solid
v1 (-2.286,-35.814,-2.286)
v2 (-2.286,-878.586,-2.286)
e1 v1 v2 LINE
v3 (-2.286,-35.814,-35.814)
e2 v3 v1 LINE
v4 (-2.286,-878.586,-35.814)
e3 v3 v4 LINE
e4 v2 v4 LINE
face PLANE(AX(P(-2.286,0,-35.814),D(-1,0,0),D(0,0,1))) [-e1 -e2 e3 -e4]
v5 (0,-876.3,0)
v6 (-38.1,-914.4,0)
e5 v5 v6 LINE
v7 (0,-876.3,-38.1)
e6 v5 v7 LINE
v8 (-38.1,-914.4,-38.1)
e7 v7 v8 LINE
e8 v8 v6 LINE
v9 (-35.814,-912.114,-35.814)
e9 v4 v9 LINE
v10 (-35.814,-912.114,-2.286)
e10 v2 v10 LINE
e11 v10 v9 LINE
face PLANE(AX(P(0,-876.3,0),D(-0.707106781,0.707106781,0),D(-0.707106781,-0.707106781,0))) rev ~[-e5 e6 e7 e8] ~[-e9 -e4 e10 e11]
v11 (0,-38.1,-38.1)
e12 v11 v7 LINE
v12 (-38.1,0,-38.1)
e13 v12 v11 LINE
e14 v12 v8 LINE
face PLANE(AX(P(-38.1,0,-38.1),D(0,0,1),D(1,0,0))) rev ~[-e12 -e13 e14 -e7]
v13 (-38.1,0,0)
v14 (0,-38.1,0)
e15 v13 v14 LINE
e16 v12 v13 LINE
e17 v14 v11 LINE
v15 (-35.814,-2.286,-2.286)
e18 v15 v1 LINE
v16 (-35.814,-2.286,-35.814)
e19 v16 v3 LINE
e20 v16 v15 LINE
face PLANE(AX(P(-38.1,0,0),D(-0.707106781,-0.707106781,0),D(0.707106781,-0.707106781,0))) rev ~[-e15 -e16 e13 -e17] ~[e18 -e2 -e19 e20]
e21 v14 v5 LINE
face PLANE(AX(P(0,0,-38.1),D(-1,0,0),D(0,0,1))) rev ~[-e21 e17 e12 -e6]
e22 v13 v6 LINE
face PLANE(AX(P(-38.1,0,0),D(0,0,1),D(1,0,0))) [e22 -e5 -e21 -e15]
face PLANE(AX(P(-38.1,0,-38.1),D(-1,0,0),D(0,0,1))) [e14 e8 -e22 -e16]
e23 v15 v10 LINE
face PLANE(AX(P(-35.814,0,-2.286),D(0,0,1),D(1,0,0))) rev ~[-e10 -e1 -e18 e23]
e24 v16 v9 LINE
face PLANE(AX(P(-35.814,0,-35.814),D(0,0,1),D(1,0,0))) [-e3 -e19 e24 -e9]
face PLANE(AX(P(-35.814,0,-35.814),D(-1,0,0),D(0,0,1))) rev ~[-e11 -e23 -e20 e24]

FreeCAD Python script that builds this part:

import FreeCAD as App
import Part
import Sketcher
from FreeCAD import Vector
Q = App.Units.Quantity

doc = App.newDocument("Part")
body = doc.addObject("PartDesign::Body", "Body")

# Sketch on XZ plane
sketch1 = doc.addObject("Sketcher::SketchObject", "Sketch")
body.addObject(sketch1)
sketch1.AttachmentSupport = (doc.XZ_Plane, [""])
sketch1.MapMode = "FlatFace"
sketch1.addGeometry([
    Part.LineSegment(Vector(-38, 0, 0), Vector(-38, -38, 0)),  # 0
    Part.LineSegment(Vector(-38, -38, 0), Vector(0, -38, 0)),  # 1
    Part.LineSegment(Vector(0, -38, 0), Vector(0, 0, 0)),  # 2
    Part.LineSegment(Vector(0, 0, 0), Vector(-38, 0, 0)),  # 3
    Part.LineSegment(Vector(-2, -36, 0), Vector(-36, -36, 0)),  # 4
    Part.LineSegment(Vector(-36, -36, 0), Vector(-36, -2, 0)),  # 5
    Part.LineSegment(Vector(-36, -2, 0), Vector(-2, -2, 0)),  # 6
    Part.LineSegment(Vector(-2, -2, 0), Vector(-2, -36, 0)),  # 7
], False)
sketch1.addConstraint([
    Sketcher.Constraint("Coincident", 0, 2, 1, 1),
    Sketcher.Constraint("Coincident", 1, 2, 2, 1),
    Sketcher.Constraint("Coincident", 2, 2, 3, 1),
    Sketcher.Constraint("Coincident", 3, 2, 0, 1),
    Sketcher.Constraint("Coincident", 4, 2, 5, 1),
    Sketcher.Constraint("Coincident", 5, 2, 6, 1),
    Sketcher.Constraint("Coincident", 6, 2, 7, 1),
    Sketcher.Constraint("Coincident", 7, 2, 4, 1),
    Sketcher.Constraint("Vertical", 0),
    Sketcher.Constraint("Horizontal", 1),
    Sketcher.Constraint("Vertical", 2),
    Sketcher.Constraint("Horizontal", 3),
    Sketcher.Constraint("Horizontal", 4),
    Sketcher.Constraint("Vertical", 5),
    Sketcher.Constraint("Horizontal", 6),
    Sketcher.Constraint("Vertical", 7),
    Sketcher.Constraint("Coincident", 2, 2, -1, 1),
    Sketcher.Constraint("Equal", 3, 0),
    Sketcher.Constraint("Equal", 6, 5),
    Sketcher.Constraint("DistanceX", 1, 1, 1, 2, Q("1.5 in")),
    Sketcher.Constraint("DistanceX", 4, 2, 4, 1, Q("1.32 in")),
    Sketcher.Constraint("DistanceX", 4, 2, -1, 1, Q("1.41 in")),
    Sketcher.Constraint("DistanceY", 4, 2, -1, 1, Q("1.41 in")),
])
pad1 = doc.addObject("PartDesign::Pad", "Pad")
body.addObject(pad1)
pad1.Profile = sketch1
pad1.Length = Q("36 in")

# Sketch on XY plane
sketch2 = doc.addObject("Sketcher::SketchObject", "Sketch001")
body.addObject(sketch2)
sketch2.AttachmentSupport = (doc.XY_Plane, [""])
sketch2.MapMode = "FlatFace"
sketch2.addGeometry([
    Part.LineSegment(Vector(0, -876, 0), Vector(-38, -914, 0)),  # 0
    Part.LineSegment(Vector(-38, -914, 0), Vector(0, -914, 0)),  # 1
    Part.LineSegment(Vector(0, -914, 0), Vector(0, -876, 0)),  # 2
    Part.LineSegment(Vector(0, 0, 0), Vector(-38, 0, 0)),  # 3
    Part.LineSegment(Vector(-38, 0, 0), Vector(0, -38, 0)),  # 4
    Part.LineSegment(Vector(0, -38, 0), Vector(0, 0, 0)),  # 5
], False)
sketch2.addConstraint([
    Sketcher.Constraint("Coincident", 0, 2, 1, 1),
    Sketcher.Constraint("Coincident", 1, 2, 2, 1),
    Sketcher.Constraint("Coincident", 2, 2, 0, 1),
    Sketcher.Constraint("Coincident", 3, 2, 4, 1),
    Sketcher.Constraint("Coincident", 4, 2, 5, 1),
    Sketcher.Constraint("Coincident", 5, 2, 3, 1),
    Sketcher.Constraint("Horizontal", 1),
    Sketcher.Constraint("Vertical", 2),
    Sketcher.Constraint("Horizontal", 3),
    Sketcher.Constraint("Vertical", 5),
    Sketcher.Constraint("Coincident", 5, 2, -1, 1),
    Sketcher.Constraint("PointOnObject", 1, 2, -2),
    Sketcher.Constraint("Perpendicular", 0, 4),
    Sketcher.Constraint("Vertical", 0, 2, 3, 2),
    Sketcher.Constraint("Equal", 3, 2),
    Sketcher.Constraint("DistanceX", 1, 1, 1, 2, Q("1.5 in")),
    Sketcher.Constraint("DistanceY", 0, 2, -1, 1, Q("36 in")),
])
pocket1 = doc.addObject("PartDesign::Pocket", "Pocket")
body.addObject(pocket1)
pocket1.Profile = sketch2
pocket1.Length = Q("2 in")

doc.recompute()
